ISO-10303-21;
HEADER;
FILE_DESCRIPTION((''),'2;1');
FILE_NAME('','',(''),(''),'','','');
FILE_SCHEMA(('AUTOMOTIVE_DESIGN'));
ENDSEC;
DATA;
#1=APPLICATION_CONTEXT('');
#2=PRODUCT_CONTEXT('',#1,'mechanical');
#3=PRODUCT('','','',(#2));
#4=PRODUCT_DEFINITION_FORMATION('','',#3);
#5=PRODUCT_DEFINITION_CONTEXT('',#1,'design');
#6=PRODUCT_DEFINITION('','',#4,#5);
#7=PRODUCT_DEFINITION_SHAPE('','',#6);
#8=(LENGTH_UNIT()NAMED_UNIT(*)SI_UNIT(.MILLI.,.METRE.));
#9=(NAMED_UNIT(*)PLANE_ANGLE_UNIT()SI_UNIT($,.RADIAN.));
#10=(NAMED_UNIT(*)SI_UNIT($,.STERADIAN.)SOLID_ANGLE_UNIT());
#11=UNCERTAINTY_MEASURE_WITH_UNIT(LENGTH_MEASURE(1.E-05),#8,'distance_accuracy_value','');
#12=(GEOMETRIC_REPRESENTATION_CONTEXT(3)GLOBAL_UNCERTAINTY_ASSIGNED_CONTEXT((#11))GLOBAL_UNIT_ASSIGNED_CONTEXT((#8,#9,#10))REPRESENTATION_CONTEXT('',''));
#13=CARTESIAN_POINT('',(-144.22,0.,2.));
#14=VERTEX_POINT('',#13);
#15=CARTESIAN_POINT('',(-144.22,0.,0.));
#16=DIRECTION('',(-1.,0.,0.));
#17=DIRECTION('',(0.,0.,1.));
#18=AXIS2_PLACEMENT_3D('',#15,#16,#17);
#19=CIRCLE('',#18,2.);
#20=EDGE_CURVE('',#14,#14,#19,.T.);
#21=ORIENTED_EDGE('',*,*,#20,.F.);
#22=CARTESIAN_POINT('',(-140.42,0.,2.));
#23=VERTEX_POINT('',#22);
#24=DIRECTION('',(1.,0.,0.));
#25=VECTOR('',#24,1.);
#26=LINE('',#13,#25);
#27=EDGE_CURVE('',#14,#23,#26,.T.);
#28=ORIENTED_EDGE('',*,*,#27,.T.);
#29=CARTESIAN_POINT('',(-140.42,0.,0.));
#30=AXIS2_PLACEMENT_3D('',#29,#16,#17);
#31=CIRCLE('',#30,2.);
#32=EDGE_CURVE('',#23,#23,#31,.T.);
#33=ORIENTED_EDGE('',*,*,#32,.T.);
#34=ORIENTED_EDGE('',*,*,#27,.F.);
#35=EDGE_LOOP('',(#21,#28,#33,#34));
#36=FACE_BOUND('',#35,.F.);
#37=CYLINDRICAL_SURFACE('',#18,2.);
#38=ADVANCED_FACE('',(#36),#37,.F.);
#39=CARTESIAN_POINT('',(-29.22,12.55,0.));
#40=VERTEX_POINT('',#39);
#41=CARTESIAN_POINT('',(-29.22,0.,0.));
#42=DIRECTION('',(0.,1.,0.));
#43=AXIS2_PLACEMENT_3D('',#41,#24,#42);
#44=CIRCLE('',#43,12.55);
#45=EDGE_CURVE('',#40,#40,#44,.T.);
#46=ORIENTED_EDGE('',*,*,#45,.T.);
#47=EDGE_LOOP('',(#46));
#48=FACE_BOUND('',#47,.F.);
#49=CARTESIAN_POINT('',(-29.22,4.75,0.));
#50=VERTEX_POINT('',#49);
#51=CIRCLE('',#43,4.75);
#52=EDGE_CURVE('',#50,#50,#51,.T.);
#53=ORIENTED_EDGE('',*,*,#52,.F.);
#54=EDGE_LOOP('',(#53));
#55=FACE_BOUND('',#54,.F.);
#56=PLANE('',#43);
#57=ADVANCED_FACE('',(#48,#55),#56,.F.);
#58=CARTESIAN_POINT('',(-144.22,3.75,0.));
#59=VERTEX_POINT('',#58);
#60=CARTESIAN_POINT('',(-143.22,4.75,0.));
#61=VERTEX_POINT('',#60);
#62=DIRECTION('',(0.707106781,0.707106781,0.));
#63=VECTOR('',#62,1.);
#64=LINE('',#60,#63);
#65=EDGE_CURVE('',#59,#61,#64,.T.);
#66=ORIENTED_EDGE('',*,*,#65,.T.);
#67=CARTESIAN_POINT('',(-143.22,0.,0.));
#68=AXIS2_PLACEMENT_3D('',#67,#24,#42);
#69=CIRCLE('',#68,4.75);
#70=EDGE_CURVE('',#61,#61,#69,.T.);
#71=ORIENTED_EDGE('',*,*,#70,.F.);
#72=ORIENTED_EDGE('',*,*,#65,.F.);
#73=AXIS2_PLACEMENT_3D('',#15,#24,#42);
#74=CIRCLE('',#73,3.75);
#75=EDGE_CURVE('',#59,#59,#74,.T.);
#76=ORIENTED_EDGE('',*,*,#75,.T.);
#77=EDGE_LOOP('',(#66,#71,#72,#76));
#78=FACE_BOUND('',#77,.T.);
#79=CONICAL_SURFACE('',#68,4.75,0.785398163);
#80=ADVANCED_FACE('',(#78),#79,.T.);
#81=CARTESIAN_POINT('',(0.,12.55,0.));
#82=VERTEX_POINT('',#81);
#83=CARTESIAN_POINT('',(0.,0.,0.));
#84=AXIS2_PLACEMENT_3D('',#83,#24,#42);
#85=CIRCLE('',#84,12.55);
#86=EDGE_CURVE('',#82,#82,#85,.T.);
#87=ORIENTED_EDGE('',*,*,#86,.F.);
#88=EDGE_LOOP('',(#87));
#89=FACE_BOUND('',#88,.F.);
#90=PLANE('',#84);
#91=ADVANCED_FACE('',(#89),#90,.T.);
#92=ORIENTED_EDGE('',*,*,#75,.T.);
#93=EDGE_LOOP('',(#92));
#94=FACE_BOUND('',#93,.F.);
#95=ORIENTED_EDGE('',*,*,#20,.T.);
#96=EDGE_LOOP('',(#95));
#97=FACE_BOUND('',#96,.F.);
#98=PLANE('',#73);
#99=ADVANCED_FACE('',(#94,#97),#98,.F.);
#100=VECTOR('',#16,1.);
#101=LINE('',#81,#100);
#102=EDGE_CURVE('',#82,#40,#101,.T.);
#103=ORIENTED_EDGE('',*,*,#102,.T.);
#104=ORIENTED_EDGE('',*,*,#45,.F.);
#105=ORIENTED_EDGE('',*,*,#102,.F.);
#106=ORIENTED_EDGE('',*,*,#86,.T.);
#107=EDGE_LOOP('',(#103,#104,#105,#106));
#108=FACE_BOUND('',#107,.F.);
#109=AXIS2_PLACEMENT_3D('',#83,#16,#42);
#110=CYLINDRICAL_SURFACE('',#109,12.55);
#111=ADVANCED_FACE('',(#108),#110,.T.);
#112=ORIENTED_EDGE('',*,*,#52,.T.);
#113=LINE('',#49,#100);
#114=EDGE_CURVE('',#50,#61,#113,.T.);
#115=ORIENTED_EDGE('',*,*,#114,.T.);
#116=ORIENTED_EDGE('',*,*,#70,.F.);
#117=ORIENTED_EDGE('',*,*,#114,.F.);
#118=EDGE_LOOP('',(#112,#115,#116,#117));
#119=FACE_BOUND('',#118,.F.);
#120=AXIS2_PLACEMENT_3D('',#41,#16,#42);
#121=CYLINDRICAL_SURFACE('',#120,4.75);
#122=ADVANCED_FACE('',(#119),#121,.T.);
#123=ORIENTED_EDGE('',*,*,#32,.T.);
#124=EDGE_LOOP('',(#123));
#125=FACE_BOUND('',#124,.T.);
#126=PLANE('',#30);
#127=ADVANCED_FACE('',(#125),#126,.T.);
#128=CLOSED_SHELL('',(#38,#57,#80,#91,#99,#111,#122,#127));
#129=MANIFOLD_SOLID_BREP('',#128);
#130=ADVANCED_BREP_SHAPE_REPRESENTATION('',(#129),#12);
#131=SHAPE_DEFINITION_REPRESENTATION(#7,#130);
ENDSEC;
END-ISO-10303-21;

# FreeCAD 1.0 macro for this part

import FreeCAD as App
import Part
import Sketcher
from FreeCAD import Vector


def edges_at(feature, points):
    """Names of the edges that pass closest to the given points."""
    edges = feature.Shape.Edges
    near = lambda p: min(range(len(edges)), key=lambda i: edges[i].distToShape(Part.Vertex(*p))[0])
    return sorted({f"Edge{near(p) + 1}" for p in points})

doc = App.newDocument("Part")
body = doc.addObject("PartDesign::Body", "Body")

# Sketch on XY plane
sketch1 = body.newObject("Sketcher::SketchObject", "Sketch")
sketch1.AttachmentSupport = (doc.getObject("XY_Plane"), [""])
sketch1.MapMode = "FlatFace"
sketch1.addGeometry(Part.LineSegment(Vector(-144.2, 0, 0), Vector(0, 0, 0)), False)
sketch1.addGeometry(Part.LineSegment(Vector(0, 0, 0), Vector(0, 12.6, 0)), False)
sketch1.addGeometry(Part.LineSegment(Vector(0, 12.6, 0), Vector(-29.2, 12.6, 0)), False)
sketch1.addGeometry(Part.LineSegment(Vector(-29.2, 12.6, 0), Vector(-29.2, 4.8, 0)), False)
sketch1.addGeometry(Part.LineSegment(Vector(-29.2, 4.8, 0), Vector(-144.2, 4.8, 0)), False)
sketch1.addGeometry(Part.LineSegment(Vector(-144.2, 4.8, 0), Vector(-144.2, 0, 0)), False)
sketch1.addConstraint(Sketcher.Constraint("Coincident", 0, 2, 1, 1))
sketch1.addConstraint(Sketcher.Constraint("Coincident", 1, 2, 2, 1))
sketch1.addConstraint(Sketcher.Constraint("Coincident", 2, 2, 3, 1))
sketch1.addConstraint(Sketcher.Constraint("Coincident", 3, 2, 4, 1))
sketch1.addConstraint(Sketcher.Constraint("Coincident", 4, 2, 5, 1))
sketch1.addConstraint(Sketcher.Constraint("Coincident", 5, 2, 0, 1))
sketch1.addConstraint(Sketcher.Constraint("Horizontal", 0))
sketch1.addConstraint(Sketcher.Constraint("Vertical", 1))
sketch1.addConstraint(Sketcher.Constraint("Horizontal", 2))
sketch1.addConstraint(Sketcher.Constraint("Vertical", 3))
sketch1.addConstraint(Sketcher.Constraint("Horizontal", 4))
sketch1.addConstraint(Sketcher.Constraint("Vertical", 5))
sketch1.addConstraint(Sketcher.Constraint("Coincident", 0, 2, -1, 1))
sketch1.addConstraint(Sketcher.Constraint("DistanceX", 4, 2, 4, 1, 115.0))
sketch1.addConstraint(Sketcher.Constraint("DistanceX", 2, 2, 2, 1, 29.22))
sketch1.addConstraint(Sketcher.Constraint("DistanceY", 1, 1, 1, 2, 12.55))
sketch1.addConstraint(Sketcher.Constraint("DistanceY", 5, 2, 5, 1, 4.75))
revolution = body.newObject("PartDesign::Revolution", "Revolution")
revolution.Profile = sketch1
revolution.ReferenceAxis = (sketch1, ["H_Axis"])
revolution.Angle = 360
doc.recompute()

chamfer = body.newObject("PartDesign::Chamfer", "Chamfer")
chamfer.Base = (revolution, edges_at(revolution, [(-144.22, -4.75, 0)]))
chamfer.Size = 1

# Sketch on YZ plane
sketch2 = body.newObject("Sketcher::SketchObject", "Sketch001")
sketch2.AttachmentSupport = (doc.getObject("YZ_Plane"), [""])
sketch2.MapMode = "FlatFace"
sketch2.AttachmentOffset = App.Placement(Vector(0, 0, -144.22), App.Rotation())
sketch2.addGeometry(Part.Circle(Vector(0, 0, 0), Vector(0, 0, 1), 2), False)
sketch2.addConstraint(Sketcher.Constraint("Coincident", 0, 3, -1, 1))
sketch2.addConstraint(Sketcher.Constraint("Diameter", 0, 4.0))
pocket1 = body.newObject("PartDesign::Pocket", "Pocket")
pocket1.Profile = sketch2
pocket1.Length = 3.8
pocket1.Reversed = True

doc.recompute()
